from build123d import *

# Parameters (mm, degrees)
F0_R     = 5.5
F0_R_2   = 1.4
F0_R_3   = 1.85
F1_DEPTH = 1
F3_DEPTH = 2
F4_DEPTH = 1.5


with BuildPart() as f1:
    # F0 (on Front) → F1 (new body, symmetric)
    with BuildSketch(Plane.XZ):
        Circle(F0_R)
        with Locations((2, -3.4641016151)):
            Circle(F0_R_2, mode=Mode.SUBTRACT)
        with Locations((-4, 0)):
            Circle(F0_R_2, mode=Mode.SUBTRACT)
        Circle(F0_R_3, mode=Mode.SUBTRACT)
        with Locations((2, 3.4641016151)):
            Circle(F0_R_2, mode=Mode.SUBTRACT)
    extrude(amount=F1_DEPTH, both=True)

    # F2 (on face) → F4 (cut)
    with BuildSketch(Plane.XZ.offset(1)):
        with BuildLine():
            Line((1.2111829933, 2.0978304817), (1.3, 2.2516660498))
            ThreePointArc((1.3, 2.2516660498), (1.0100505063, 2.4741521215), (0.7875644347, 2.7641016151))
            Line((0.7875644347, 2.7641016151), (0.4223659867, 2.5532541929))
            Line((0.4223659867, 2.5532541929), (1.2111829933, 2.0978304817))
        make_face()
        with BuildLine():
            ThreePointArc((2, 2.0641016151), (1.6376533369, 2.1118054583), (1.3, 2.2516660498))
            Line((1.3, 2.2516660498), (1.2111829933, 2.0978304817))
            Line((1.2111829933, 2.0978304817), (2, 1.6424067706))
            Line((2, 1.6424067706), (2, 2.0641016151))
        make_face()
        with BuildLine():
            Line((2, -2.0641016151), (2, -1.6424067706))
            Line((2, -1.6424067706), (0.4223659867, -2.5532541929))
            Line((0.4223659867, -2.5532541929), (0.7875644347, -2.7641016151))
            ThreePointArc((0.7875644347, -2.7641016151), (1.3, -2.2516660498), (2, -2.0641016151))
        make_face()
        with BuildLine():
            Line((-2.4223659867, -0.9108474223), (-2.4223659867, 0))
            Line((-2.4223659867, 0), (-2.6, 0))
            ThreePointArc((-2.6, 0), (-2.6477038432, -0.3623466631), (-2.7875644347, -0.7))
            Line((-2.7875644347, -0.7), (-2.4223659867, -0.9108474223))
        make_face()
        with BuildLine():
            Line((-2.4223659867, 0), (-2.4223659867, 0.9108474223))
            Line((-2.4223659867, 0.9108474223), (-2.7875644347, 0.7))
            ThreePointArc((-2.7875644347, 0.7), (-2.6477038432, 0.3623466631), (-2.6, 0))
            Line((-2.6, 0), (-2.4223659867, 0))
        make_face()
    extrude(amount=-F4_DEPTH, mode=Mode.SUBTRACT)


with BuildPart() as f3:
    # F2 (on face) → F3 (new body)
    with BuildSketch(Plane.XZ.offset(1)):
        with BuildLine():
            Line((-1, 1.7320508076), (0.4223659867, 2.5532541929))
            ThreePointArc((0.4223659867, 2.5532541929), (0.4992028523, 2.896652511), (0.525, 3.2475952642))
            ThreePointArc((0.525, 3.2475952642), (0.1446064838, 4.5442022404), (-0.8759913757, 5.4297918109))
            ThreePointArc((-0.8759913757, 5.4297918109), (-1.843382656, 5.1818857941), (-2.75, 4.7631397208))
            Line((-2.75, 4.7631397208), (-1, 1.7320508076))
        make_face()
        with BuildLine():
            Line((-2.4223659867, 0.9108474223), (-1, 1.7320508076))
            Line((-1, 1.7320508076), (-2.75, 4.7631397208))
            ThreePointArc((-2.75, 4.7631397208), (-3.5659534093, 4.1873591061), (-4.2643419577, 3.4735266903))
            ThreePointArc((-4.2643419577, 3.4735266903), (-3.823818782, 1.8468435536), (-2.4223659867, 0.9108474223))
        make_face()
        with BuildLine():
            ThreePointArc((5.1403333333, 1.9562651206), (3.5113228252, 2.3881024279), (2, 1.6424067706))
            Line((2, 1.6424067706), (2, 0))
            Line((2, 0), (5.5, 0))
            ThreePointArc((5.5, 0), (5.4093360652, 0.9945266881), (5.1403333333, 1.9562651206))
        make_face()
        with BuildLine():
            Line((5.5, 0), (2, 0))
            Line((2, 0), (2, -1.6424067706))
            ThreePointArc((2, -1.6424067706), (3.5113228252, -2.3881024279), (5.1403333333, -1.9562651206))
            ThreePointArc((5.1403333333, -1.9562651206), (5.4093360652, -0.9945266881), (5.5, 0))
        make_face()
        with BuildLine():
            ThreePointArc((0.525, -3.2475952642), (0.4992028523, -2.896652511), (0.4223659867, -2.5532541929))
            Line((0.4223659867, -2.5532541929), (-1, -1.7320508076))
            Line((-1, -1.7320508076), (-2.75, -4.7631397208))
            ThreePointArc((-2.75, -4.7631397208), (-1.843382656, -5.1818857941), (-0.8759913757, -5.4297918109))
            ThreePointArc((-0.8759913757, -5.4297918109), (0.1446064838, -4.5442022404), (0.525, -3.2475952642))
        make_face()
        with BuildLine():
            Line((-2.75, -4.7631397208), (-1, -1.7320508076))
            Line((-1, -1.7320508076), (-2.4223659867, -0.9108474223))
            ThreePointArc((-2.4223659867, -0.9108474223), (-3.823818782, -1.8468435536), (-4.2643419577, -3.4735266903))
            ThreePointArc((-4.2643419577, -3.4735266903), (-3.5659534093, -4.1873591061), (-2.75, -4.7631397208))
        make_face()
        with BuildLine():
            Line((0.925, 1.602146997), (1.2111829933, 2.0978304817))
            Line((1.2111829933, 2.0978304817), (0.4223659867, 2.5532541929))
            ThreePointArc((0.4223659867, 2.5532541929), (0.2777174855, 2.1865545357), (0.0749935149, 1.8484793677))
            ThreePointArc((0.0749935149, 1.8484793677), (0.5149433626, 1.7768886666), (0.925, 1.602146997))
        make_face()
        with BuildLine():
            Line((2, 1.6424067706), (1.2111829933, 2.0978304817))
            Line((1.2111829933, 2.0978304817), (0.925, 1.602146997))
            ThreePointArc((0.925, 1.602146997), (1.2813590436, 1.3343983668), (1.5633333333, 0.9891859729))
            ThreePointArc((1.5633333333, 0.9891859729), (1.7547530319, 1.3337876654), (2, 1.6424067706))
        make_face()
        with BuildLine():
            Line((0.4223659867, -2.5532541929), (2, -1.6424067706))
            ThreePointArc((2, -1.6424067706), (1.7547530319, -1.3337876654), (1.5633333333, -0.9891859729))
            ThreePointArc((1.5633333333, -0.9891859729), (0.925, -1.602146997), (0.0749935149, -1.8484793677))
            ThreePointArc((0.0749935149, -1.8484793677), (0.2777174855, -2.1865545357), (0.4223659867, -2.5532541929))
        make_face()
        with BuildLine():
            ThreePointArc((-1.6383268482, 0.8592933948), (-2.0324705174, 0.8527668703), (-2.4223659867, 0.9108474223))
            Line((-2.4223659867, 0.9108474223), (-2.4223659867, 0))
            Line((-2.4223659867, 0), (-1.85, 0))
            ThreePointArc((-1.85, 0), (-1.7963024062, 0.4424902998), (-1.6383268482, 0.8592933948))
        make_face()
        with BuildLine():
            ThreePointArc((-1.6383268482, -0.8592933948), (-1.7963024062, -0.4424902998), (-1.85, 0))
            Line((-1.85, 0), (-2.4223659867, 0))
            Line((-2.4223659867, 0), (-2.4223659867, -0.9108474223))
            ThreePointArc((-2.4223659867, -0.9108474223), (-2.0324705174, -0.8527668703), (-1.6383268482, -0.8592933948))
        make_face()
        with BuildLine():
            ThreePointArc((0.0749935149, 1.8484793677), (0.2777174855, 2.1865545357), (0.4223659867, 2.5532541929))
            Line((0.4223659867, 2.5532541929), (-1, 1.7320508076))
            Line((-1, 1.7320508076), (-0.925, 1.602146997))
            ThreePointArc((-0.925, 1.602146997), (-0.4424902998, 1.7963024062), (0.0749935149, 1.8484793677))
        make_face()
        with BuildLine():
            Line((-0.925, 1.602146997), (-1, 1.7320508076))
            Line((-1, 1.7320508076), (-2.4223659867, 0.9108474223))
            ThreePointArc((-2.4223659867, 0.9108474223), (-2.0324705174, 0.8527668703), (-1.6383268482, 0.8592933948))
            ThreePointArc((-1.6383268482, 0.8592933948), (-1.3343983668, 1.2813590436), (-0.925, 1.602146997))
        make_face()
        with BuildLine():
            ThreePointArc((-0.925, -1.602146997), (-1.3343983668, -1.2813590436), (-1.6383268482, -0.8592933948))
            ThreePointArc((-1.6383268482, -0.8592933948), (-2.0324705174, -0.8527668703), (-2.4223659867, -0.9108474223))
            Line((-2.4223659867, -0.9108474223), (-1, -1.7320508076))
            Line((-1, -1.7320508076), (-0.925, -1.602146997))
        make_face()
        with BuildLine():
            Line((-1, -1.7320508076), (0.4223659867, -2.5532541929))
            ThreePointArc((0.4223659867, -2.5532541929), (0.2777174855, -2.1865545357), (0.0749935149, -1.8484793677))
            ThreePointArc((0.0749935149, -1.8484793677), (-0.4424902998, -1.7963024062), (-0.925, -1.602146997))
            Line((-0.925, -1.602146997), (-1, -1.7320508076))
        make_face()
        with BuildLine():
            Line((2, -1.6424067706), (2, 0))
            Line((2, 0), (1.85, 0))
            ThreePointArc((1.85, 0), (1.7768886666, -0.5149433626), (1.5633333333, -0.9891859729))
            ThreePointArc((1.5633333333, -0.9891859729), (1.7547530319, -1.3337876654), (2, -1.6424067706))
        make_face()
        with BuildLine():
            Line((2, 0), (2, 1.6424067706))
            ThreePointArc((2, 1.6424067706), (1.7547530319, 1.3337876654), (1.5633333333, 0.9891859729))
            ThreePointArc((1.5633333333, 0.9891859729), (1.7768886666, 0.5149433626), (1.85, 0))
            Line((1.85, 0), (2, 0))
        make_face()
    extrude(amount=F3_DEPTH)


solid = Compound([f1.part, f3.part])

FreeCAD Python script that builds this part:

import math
import FreeCAD as App
import Part
import Sketcher
from FreeCAD import Vector
Q = App.Units.Quantity

doc = App.newDocument("Part")
body = doc.addObject("PartDesign::Body", "Body")

sketch1 = doc.addObject("Sketcher::SketchObject", "Sketch")
body.addObject(sketch1)
sketch1.AttachmentSupport = (doc.XZ_Plane, [""])
sketch1.MapMode = "FlatFace"
sketch1.addGeometry(Part.Circle(Vector(0, 0, 0), Vector(0, 0, 1), 5.5), False)
sketch1.addGeometry(Part.Circle(Vector(-4, 0, 0), Vector(0, 0, 1), 1.4), False)
sketch1.addGeometry(Part.Circle(Vector(2, -3.5, 0), Vector(0, 0, 1), 1.4), False)
sketch1.addGeometry(Part.Circle(Vector(0, 0, 0), Vector(0, 0, 1), 1.9), False)
sketch1.addGeometry(Part.Circle(Vector(2, 3.5, 0), Vector(0, 0, 1), 1.4), False)
sketch1.addConstraint(Sketcher.Constraint("Coincident", 0, 3, -1, 1))
sketch1.addConstraint(Sketcher.Constraint("Coincident", 3, 3, -1, 1))
sketch1.addConstraint(Sketcher.Constraint("Equal", 1, 2))
sketch1.addConstraint(Sketcher.Constraint("Equal", 2, 4))
sketch1.addConstraint(Sketcher.Constraint("Symmetric", 2, 3, 4, 3, -1))
sketch1.addConstraint(Sketcher.Constraint("PointOnObject", 1, 3, -1))
sketch1.addConstraint(Sketcher.Constraint("Diameter", 0, Q("11 mm")))
sketch1.addConstraint(Sketcher.Constraint("Diameter", 1, Q("2.8 mm")))
sketch1.addConstraint(Sketcher.Constraint("Diameter", 3, Q("3.7 mm")))
sketch1.addConstraint(Sketcher.Constraint("DistanceX", 1, 3, -1, 1, Q("4 mm")))
sketch1.addConstraint(Sketcher.Constraint("DistanceX", -1, 1, 2, 3, Q("2 mm")))
sketch1.addConstraint(Sketcher.Constraint("DistanceY", 2, 3, -1, 1, Q("3.464102 mm")))
pad1 = doc.addObject("PartDesign::Pad", "Pad")
body.addObject(pad1)
pad1.Profile = sketch1
pad1.Length = 2
pad1.Midplane = True

sketch2 = doc.addObject("Sketcher::SketchObject", "Sketch001")
body.addObject(sketch2)
sketch2.AttachmentSupport = (doc.XZ_Plane, [""])
sketch2.MapMode = "FlatFace"
sketch2.AttachmentOffset = App.Placement(Vector(0, 0, 1), App.Rotation())
sketch2.addGeometry(Part.ArcOfCircle(Part.Circle(Vector(2, 3.46, 0), Vector(0, 0, 1), 1.4), math.radians(-150), math.radians(-120)), False)
sketch2.addGeometry(Part.LineSegment(Vector(0.79, 2.76, 0), Vector(0.42, 2.55, 0)), False)
sketch2.addGeometry(Part.LineSegment(Vector(0.42, 2.55, 0), Vector(1.21, 2.1, 0)), False)
sketch2.addGeometry(Part.LineSegment(Vector(1.21, 2.1, 0), Vector(2, 1.64, 0)), False)
sketch2.addGeometry(Part.LineSegment(Vector(2, 1.64, 0), Vector(2, 2.06, 0)), False)
sketch2.addGeometry(Part.ArcOfCircle(Part.Circle(Vector(2, 3.46, 0), Vector(0, 0, 1), 1.4), math.radians(-120), math.radians(-90)), False)
sketch2.addGeometry(Part.LineSegment(Vector(2, -2.06, 0), Vector(2, -1.64, 0)), False)
sketch2.addGeometry(Part.LineSegment(Vector(2, -1.64, 0), Vector(0.42, -2.55, 0)), False)
sketch2.addGeometry(Part.LineSegment(Vector(0.42, -2.55, 0), Vector(0.79, -2.76, 0)), False)
sketch2.addGeometry(Part.ArcOfCircle(Part.Circle(Vector(2, -3.46, 0), Vector(0, 0, 1), 1.4), math.radians(90), math.radians(150)), False)
sketch2.addGeometry(Part.LineSegment(Vector(-2.42, -0.91, 0), Vector(-2.42, 0.91, 0)), False)
sketch2.addGeometry(Part.LineSegment(Vector(-2.42, 0.91, 0), Vector(-2.79, 0.7, 0)), False)
sketch2.addGeometry(Part.ArcOfCircle(Part.Circle(Vector(-4, 0, 0), Vector(0, 0, 1), 1.4), math.radians(0), math.radians(30)), False)
sketch2.addGeometry(Part.ArcOfCircle(Part.Circle(Vector(-4, 0, 0), Vector(0, 0, 1), 1.4), math.radians(-30), math.radians(0)), False)
sketch2.addGeometry(Part.LineSegment(Vector(-2.79, -0.7, 0), Vector(-2.42, -0.91, 0)), False)
sketch2.addConstraint(Sketcher.Constraint("Coincident", 0, 1, 1, 1))
sketch2.addConstraint(Sketcher.Constraint("Coincident", 1, 2, 2, 1))
sketch2.addConstraint(Sketcher.Constraint("Coincident", 2, 2, 3, 1))
sketch2.addConstraint(Sketcher.Constraint("Coincident", 3, 2, 4, 1))
sketch2.addConstraint(Sketcher.Constraint("Coincident", 4, 2, 5, 2))
sketch2.addConstraint(Sketcher.Constraint("Tangent", 5, 1, 0, 2))
sketch2.addConstraint(Sketcher.Constraint("Coincident", 6, 2, 7, 1))
sketch2.addConstraint(Sketcher.Constraint("Coincident", 7, 2, 8, 1))
sketch2.addConstraint(Sketcher.Constraint("Coincident", 8, 2, 9, 2))
sketch2.addConstraint(Sketcher.Constraint("Coincident", 9, 1, 6, 1))
sketch2.addConstraint(Sketcher.Constraint("Coincident", 10, 2, 11, 1))
sketch2.addConstraint(Sketcher.Constraint("Coincident", 11, 2, 12, 2))
sketch2.addConstraint(Sketcher.Constraint("Tangent", 12, 1, 13, 2))
sketch2.addConstraint(Sketcher.Constraint("Coincident", 13, 1, 14, 1))
sketch2.addConstraint(Sketcher.Constraint("Coincident", 14, 2, 10, 1))
sketch2.addConstraint(Sketcher.Constraint("Vertical", 4))
sketch2.addConstraint(Sketcher.Constraint("Vertical", 6))
sketch2.addConstraint(Sketcher.Constraint("Vertical", 10))
sketch2.addConstraint(Sketcher.Constraint("Equal", 0, 5))
sketch2.addConstraint(Sketcher.Constraint("Equal", 5, 9))
sketch2.addConstraint(Sketcher.Constraint("Equal", 9, 12))
sketch2.addConstraint(Sketcher.Constraint("Equal", 12, 13))
sketch2.addConstraint(Sketcher.Constraint("Symmetric", 0, 3, 9, 3, -1))
sketch2.addConstraint(Sketcher.Constraint("Symmetric", 3, 2, 6, 2, -1))
sketch2.addConstraint(Sketcher.Constraint("Symmetric", 1, 2, 7, 2, -1))
sketch2.addConstraint(Sketcher.Constraint("Symmetric", 11, 2, 13, 1, -1))
sketch2.addConstraint(Sketcher.Constraint("PointOnObject", 12, 1, -1))
sketch2.addConstraint(Sketcher.Constraint("Parallel", 2, 3))
sketch2.addConstraint(Sketcher.Constraint("Parallel", 1, 7))
sketch2.addConstraint(Sketcher.Constraint("Parallel", 3, 8))
sketch2.addConstraint(Sketcher.Constraint("Parallel", 7, 11))
sketch2.addConstraint(Sketcher.Constraint("Parallel", 8, 14))
sketch2.addConstraint(Sketcher.Constraint("Vertical", 9, 3, 3, 2))
sketch2.addConstraint(Sketcher.Constraint("Equal", 2, 3))
sketch2.addConstraint(Sketcher.Constraint("Equal", 8, 11))
sketch2.addConstraint(Sketcher.Constraint("Radius", 0, Q("1.4 mm")))
sketch2.addConstraint(Sketcher.Constraint("Angle", 1, Q("-150 deg")))
sketch2.addConstraint(Sketcher.Constraint("DistanceX", -1, 1, 0, 3, Q("2 mm")))
sketch2.addConstraint(Sketcher.Constraint("DistanceX", 12, 3, -1, 1, Q("4 mm")))
sketch2.addConstraint(Sketcher.Constraint("DistanceX", -1, 1, 5, 1, Q("1.3 mm")))
sketch2.addConstraint(Sketcher.Constraint("DistanceY", -1, 1, 11, 2, Q("0.7 mm")))
sketch2.addConstraint(Sketcher.Constraint("DistanceY", 0, 1, 0, 3, Q("0.7 mm")))
sketch2.addConstraint(Sketcher.Constraint("DistanceY", -1, 1, 0, 3, Q("3.464102 mm")))
sketch2.addConstraint(Sketcher.Constraint("DistanceX", 1, 2, 0, 1, Q("0.365198 mm")))
pocket1 = doc.addObject("PartDesign::Pocket", "Pocket")
body.addObject(pocket1)
pocket1.Profile = sketch2
pocket1.Length = 1.5
body2 = doc.addObject("PartDesign::Body", "Body001")

sketch3 = doc.addObject("Sketcher::SketchObject", "Sketch002")
body2.addObject(sketch3)
sketch3.AttachmentSupport = (doc.getObject("XZ_Plane001"), [""])
sketch3.MapMode = "FlatFace"
sketch3.AttachmentOffset = App.Placement(Vector(0, 0, 1), App.Rotation())
sketch3.addGeometry(Part.ArcOfCircle(Part.Circle(Vector(3.75, 0, 0), Vector(0, 0, 1), 2.4), math.radians(54.598286), math.radians(136.816578)), False)
sketch3.addGeometry(Part.LineSegment(Vector(2, 1.642407, 0), Vector(1.211183, 2.09783, 0)), False)
sketch3.addGeometry(Part.LineSegment(Vector(1.211183, 2.09783, 0), Vector(0.422366, 2.553254, 0)), False)
sketch3.addGeometry(Part.ArcOfCircle(Part.Circle(Vector(-1.875, 3.247595, 0), Vector(0, 0, 1), 2.4), math.radians(-16.816578), math.radians(0)), False)
sketch3.addGeometry(Part.ArcOfCircle(Part.Circle(Vector(-1.875, 3.247595, 0), Vector(0, 0, 1), 2.4), math.radians(0), math.radians(65.401714)), False)
sketch3.addGeometry(Part.ArcOfCircle(Part.Circle(Vector(0, 0, 0), Vector(0, 0, 1), 5.5), math.radians(99.164594), math.radians(120)), False)
sketch3.addGeometry(Part.ArcOfCircle(Part.Circle(Vector(0, 0, 0), Vector(0, 0, 1), 5.5), math.radians(120), math.radians(140.835406)), False)
sketch3.addGeometry(Part.ArcOfCircle(Part.Circle(Vector(-1.875, 3.247595, 0), Vector(0, 0, 1), 2.4), math.radians(174.598286), math.radians(256.816578)), False)
sketch3.addGeometry(Part.LineSegment(Vector(-2.422366, 0.910847, 0), Vector(-2.422366, -0.910847, 0)), False)
sketch3.addGeometry(Part.ArcOfCircle(Part.Circle(Vector(-1.875, -3.247595, 0), Vector(0, 0, 1), 2.4), math.radians(103.183422), math.radians(185.401714)), False)
sketch3.addGeometry(Part.ArcOfCircle(Part.Circle(Vector(0, 0, 0), Vector(0, 0, 1), 5.5), math.radians(-140.835406), math.radians(-120)), False)
sketch3.addGeometry(Part.ArcOfCircle(Part.Circle(Vector(0, 0, 0), Vector(0, 0, 1), 5.5), math.radians(-120), math.radians(-99.164594)), False)
sketch3.addGeometry(Part.ArcOfCircle(Part.Circle(Vector(-1.875, -3.247595, 0), Vector(0, 0, 1), 2.4), math.radians(-65.401714), math.radians(0)), False)
sketch3.addGeometry(Part.ArcOfCircle(Part.Circle(Vector(-1.875, -3.247595, 0), Vector(0, 0, 1), 2.4), math.radians(0), math.radians(16.816578)), False)
sketch3.addGeometry(Part.LineSegment(Vector(0.422366, -2.553254, 0), Vector(2, -1.642407, 0)), False)
sketch3.addGeometry(Part.ArcOfCircle(Part.Circle(Vector(3.75, 0, 0), Vector(0, 0, 1), 2.4), math.radians(-136.816578), math.radians(-54.598286)), False)
sketch3.addGeometry(Part.ArcOfCircle(Part.Circle(Vector(0, 0, 0), Vector(0, 0, 1), 5.5), math.radians(-20.835406), math.radians(0)), False)
sketch3.addGeometry(Part.ArcOfCircle(Part.Circle(Vector(0, 0, 0), Vector(0, 0, 1), 5.5), math.radians(0), math.radians(20.835406)), False)
sketch3.addGeometry(Part.ArcOfCircle(Part.Circle(Vector(0, 0, 0), Vector(0, 0, 1), 1.85), math.radians(32.323238), math.radians(60)), False)
sketch3.addGeometry(Part.ArcOfCircle(Part.Circle(Vector(0, 0, 0), Vector(0, 0, 1), 1.85), math.radians(0), math.radians(32.323238)), False)
sketch3.addGeometry(Part.ArcOfCircle(Part.Circle(Vector(0, 0, 0), Vector(0, 0, 1), 1.85), math.radians(-32.323238), math.radians(0)), False)
sketch3.addGeometry(Part.ArcOfCircle(Part.Circle(Vector(0, 0, 0), Vector(0, 0, 1), 1.85), math.radians(-87.676762), math.radians(-32.323238)), False)
sketch3.addGeometry(Part.ArcOfCircle(Part.Circle(Vector(0, 0, 0), Vector(0, 0, 1), 1.85), math.radians(-120), math.radians(-87.676762)), False)
sketch3.addGeometry(Part.ArcOfCircle(Part.Circle(Vector(0, 0, 0), Vector(0, 0, 1), 1.85), math.radians(-152.323238), math.radians(-120)), False)
sketch3.addGeometry(Part.ArcOfCircle(Part.Circle(Vector(0, 0, 0), Vector(0, 0, 1), 1.85), math.radians(180), math.radians(207.676762)), False)
sketch3.addGeometry(Part.ArcOfCircle(Part.Circle(Vector(0, 0, 0), Vector(0, 0, 1), 1.85), math.radians(152.323238), math.radians(180)), False)
sketch3.addGeometry(Part.ArcOfCircle(Part.Circle(Vector(0, 0, 0), Vector(0, 0, 1), 1.85), math.radians(120), math.radians(152.323238)), False)
sketch3.addGeometry(Part.ArcOfCircle(Part.Circle(Vector(0, 0, 0), Vector(0, 0, 1), 1.85), math.radians(87.676762), math.radians(120)), False)
sketch3.addGeometry(Part.ArcOfCircle(Part.Circle(Vector(0, 0, 0), Vector(0, 0, 1), 1.85), math.radians(60), math.radians(87.676762)), False)
sketch3.addConstraint(Sketcher.Constraint("Coincident", 0, 2, 1, 1))
sketch3.addConstraint(Sketcher.Constraint("Coincident", 1, 2, 2, 1))
sketch3.addConstraint(Sketcher.Constraint("Coincident", 2, 2, 3, 1))
sketch3.addConstraint(Sketcher.Constraint("Coincident", 3, 2, 4, 1))
sketch3.addConstraint(Sketcher.Constraint("Coincident", 4, 2, 5, 1))
sketch3.addConstraint(Sketcher.Constraint("Coincident", 5, 2, 6, 1))
sketch3.addConstraint(Sketcher.Constraint("Coincident", 6, 2, 7, 1))
sketch3.addConstraint(Sketcher.Constraint("Coincident", 7, 2, 8, 1))
sketch3.addConstraint(Sketcher.Constraint("Coincident", 8, 2, 9, 1))
sketch3.addConstraint(Sketcher.Constraint("Coincident", 9, 2, 10, 1))
sketch3.addConstraint(Sketcher.Constraint("Coincident", 10, 2, 11, 1))
sketch3.addConstraint(Sketcher.Constraint("Coincident", 11, 2, 12, 1))
sketch3.addConstraint(Sketcher.Constraint("Coincident", 12, 2, 13, 1))
sketch3.addConstraint(Sketcher.Constraint("Coincident", 13, 2, 14, 1))
sketch3.addConstraint(Sketcher.Constraint("Coincident", 14, 2, 15, 1))
sketch3.addConstraint(Sketcher.Constraint("Coincident", 15, 2, 16, 1))
sketch3.addConstraint(Sketcher.Constraint("Coincident", 16, 2, 17, 1))
sketch3.addConstraint(Sketcher.Constraint("Coincident", 17, 2, 0, 1))
sketch3.addConstraint(Sketcher.Constraint("Coincident", 18, 1, 19, 2))
sketch3.addConstraint(Sketcher.Constraint("Coincident", 19, 1, 20, 2))
sketch3.addConstraint(Sketcher.Constraint("Coincident", 20, 1, 21, 2))
sketch3.addConstraint(Sketcher.Constraint("Coincident", 21, 1, 22, 2))
sketch3.addConstraint(Sketcher.Constraint("Coincident", 22, 1, 23, 2))
sketch3.addConstraint(Sketcher.Constraint("Coincident", 23, 1, 24, 2))
sketch3.addConstraint(Sketcher.Constraint("Coincident", 24, 1, 25, 2))
sketch3.addConstraint(Sketcher.Constraint("Coincident", 25, 1, 26, 2))
sketch3.addConstraint(Sketcher.Constraint("Coincident", 26, 1, 27, 2))
sketch3.addConstraint(Sketcher.Constraint("Coincident", 27, 1, 28, 2))
sketch3.addConstraint(Sketcher.Constraint("Coincident", 28, 1, 18, 2))
sketch3.addConstraint(Sketcher.Constraint("Vertical", 8))
sketch3.addConstraint(Sketcher.Constraint("Coincident", 5, 3, -1, 1))
sketch3.addConstraint(Sketcher.Constraint("Coincident", 6, 3, -1, 1))
sketch3.addConstraint(Sketcher.Constraint("Coincident", 10, 3, -1, 1))
sketch3.addConstraint(Sketcher.Constraint("Coincident", 11, 3, -1, 1))
sketch3.addConstraint(Sketcher.Constraint("Coincident", 16, 3, -1, 1))
sketch3.addConstraint(Sketcher.Constraint("Coincident", 17, 3, -1, 1))
sketch3.addConstraint(Sketcher.Constraint("Coincident", 18, 3, -1, 1))
sketch3.addConstraint(Sketcher.Constraint("Coincident", 19, 3, -1, 1))
sketch3.addConstraint(Sketcher.Constraint("Coincident", 20, 3, -1, 1))
sketch3.addConstraint(Sketcher.Constraint("Coincident", 21, 3, -1, 1))
sketch3.addConstraint(Sketcher.Constraint("Coincident", 22, 3, -1, 1))
sketch3.addConstraint(Sketcher.Constraint("Coincident", 23, 3, -1, 1))
sketch3.addConstraint(Sketcher.Constraint("Coincident", 24, 3, -1, 1))
sketch3.addConstraint(Sketcher.Constraint("Coincident", 25, 3, -1, 1))
sketch3.addConstraint(Sketcher.Constraint("Coincident", 26, 3, -1, 1))
sketch3.addConstraint(Sketcher.Constraint("Coincident", 27, 3, -1, 1))
sketch3.addConstraint(Sketcher.Constraint("Coincident", 4, 3, 3, 3))
sketch3.addConstraint(Sketcher.Constraint("Coincident", 7, 3, 3, 3))
sketch3.addConstraint(Sketcher.Constraint("Coincident", 12, 3, 9, 3))
sketch3.addConstraint(Sketcher.Constraint("Coincident", 13, 3, 9, 3))
sketch3.addConstraint(Sketcher.Constraint("Coincident", 15, 3, 0, 3))
sketch3.addConstraint(Sketcher.Constraint("PointOnObject", 0, 3, -1))
sketch3.addConstraint(Sketcher.Constraint("PointOnObject", 16, 2, -1))
sketch3.addConstraint(Sketcher.Constraint("PointOnObject", 19, 1, -1))
sketch3.addConstraint(Sketcher.Constraint("PointOnObject", 24, 1, -1))
sketch3.addConstraint(Sketcher.Constraint("Radius", 0, Q("2.4 mm")))
sketch3.addConstraint(Sketcher.Constraint("Radius", 3, Q("2.4 mm")))
sketch3.addConstraint(Sketcher.Constraint("Radius", 5, Q("5.5 mm")))
sketch3.addConstraint(Sketcher.Constraint("Radius", 7, Q("2.4 mm")))
sketch3.addConstraint(Sketcher.Constraint("Radius", 9, Q("2.4 mm")))
sketch3.addConstraint(Sketcher.Constraint("Radius", 10, Q("5.5 mm")))
sketch3.addConstraint(Sketcher.Constraint("Radius", 12, Q("2.4 mm")))
sketch3.addConstraint(Sketcher.Constraint("Radius", 15, Q("2.4 mm")))
sketch3.addConstraint(Sketcher.Constraint("Radius", 16, Q("5.5 mm")))
sketch3.addConstraint(Sketcher.Constraint("Radius", 18, Q("1.85 mm")))
sketch3.addConstraint(Sketcher.Constraint("Radius", 28, Q("1.85 mm")))
sketch3.addConstraint(Sketcher.Constraint("DistanceX", -1, 1, 0, 2, Q("2 mm")))
sketch3.addConstraint(Sketcher.Constraint("DistanceX", -1, 1, 14, 2, Q("2 mm")))
sketch3.addConstraint(Sketcher.Constraint("DistanceX", -1, 1, 0, 3, Q("3.75 mm")))
sketch3.addConstraint(Sketcher.Constraint("DistanceX", 5, 2, -1, 1, Q("2.75 mm")))
sketch3.addConstraint(Sketcher.Constraint("DistanceX", 10, 2, -1, 1, Q("2.75 mm")))
sketch3.addConstraint(Sketcher.Constraint("DistanceX", 3, 3, -1, 1, Q("1.875 mm")))
sketch3.addConstraint(Sketcher.Constraint("DistanceX", 9, 3, -1, 1, Q("1.875 mm")))
sketch3.addConstraint(Sketcher.Constraint("DistanceX", 22, 1, -1, 1, Q("0.925 mm")))
sketch3.addConstraint(Sketcher.Constraint("DistanceX", 26, 1, -1, 1, Q("0.925 mm")))
sketch3.addConstraint(Sketcher.Constraint("DistanceX", -1, 1, 28, 1, Q("0.925 mm")))
sketch3.addConstraint(Sketcher.Constraint("DistanceY", 22, 1, 8, 2, Q("0.6913 mm")))
sketch3.addConstraint(Sketcher.Constraint("DistanceY", 7, 2, 26, 1, Q("0.6913 mm")))
sketch3.addConstraint(Sketcher.Constraint("DistanceY", -1, 1, 1, 2, Q("2.09783 mm")))
sketch3.addConstraint(Sketcher.Constraint("DistanceX", 4, 2, -1, 1, Q("0.875991 mm")))
sketch3.addConstraint(Sketcher.Constraint("DistanceY", 21, 1, -1, 1, Q("1.848479 mm")))
sketch3.addConstraint(Sketcher.Constraint("DistanceY", -1, 1, 27, 1, Q("1.848479 mm")))
sketch3.addConstraint(Sketcher.Constraint("DistanceY", 2, 2, 4, 3, Q("0.694341 mm")))
sketch3.addConstraint(Sketcher.Constraint("DistanceY", 2, 2, 3, 2, Q("0.694341 mm")))
sketch3.addConstraint(Sketcher.Constraint("DistanceY", 12, 2, 13, 2, Q("0.694341 mm")))
sketch3.addConstraint(Sketcher.Constraint("DistanceY", 9, 3, 13, 2, Q("0.694341 mm")))
sketch3.addConstraint(Sketcher.Constraint("DistanceY", 18, 1, 0, 2, Q("0.653221 mm")))
sketch3.addConstraint(Sketcher.Constraint("DistanceX", 1, 2, 18, 1, Q("0.35215 mm")))
sketch3.addConstraint(Sketcher.Constraint("DistanceY", 14, 2, 20, 1, Q("0.653221 mm")))
sketch3.addConstraint(Sketcher.Constraint("DistanceX", 8, 2, 23, 1, Q("0.784039 mm")))
sketch3.addConstraint(Sketcher.Constraint("DistanceX", 7, 2, 25, 1, Q("0.784039 mm")))
pad2 = doc.addObject("PartDesign::Pad", "Pad001")
body2.addObject(pad2)
pad2.Profile = sketch3
pad2.Length = 2

doc.recompute()
